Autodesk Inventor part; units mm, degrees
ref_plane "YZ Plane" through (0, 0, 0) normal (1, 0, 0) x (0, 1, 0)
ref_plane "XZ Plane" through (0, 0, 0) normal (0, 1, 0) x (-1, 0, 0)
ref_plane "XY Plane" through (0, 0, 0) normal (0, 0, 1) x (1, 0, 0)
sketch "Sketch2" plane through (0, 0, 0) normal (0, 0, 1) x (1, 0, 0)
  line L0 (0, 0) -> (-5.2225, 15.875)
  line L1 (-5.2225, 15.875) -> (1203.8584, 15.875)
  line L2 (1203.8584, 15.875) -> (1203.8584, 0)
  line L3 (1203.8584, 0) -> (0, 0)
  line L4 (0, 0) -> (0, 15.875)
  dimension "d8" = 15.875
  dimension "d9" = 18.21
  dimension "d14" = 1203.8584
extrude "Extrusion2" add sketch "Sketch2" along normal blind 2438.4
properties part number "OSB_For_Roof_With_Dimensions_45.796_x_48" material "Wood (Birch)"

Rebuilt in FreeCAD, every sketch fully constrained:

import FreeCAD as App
import Part
import Sketcher
from FreeCAD import Vector
Q = App.Units.Quantity

doc = App.newDocument("Part")
params = doc.addObject("Spreadsheet::Sheet", "Params")
for row, (alias, value) in enumerate([
    ("sketch1_width", "47.396 in"),
    ("sketch1_height", "0.625 in"),
    ("pad1_length", "96 in"),
], start=1):
    params.set(f"A{row}", alias)
    params.set(f"B{row}", "=" + value)
    params.setAlias(f"B{row}", alias)

body = doc.addObject("PartDesign::Body", "Body")

# Sketch on XY plane
sketch1 = body.newObject("Sketcher::SketchObject", "Sketch")
sketch1.AttachmentSupport = (doc.getObject("XY_Plane"), [""])
sketch1.MapMode = "FlatFace"
sketch1.addGeometry([
    Part.LineSegment(Vector(1204, 16, 0), Vector(-5, 16, 0)),
    Part.LineSegment(Vector(-5, 16, 0), Vector(0, 0, 0)),
    Part.LineSegment(Vector(0, 0, 0), Vector(1204, 0, 0)),
    Part.LineSegment(Vector(1204, 0, 0), Vector(1204, 16, 0)),
], False)
sketch1.addConstraint([
    Sketcher.Constraint("Coincident", 0, 2, 1, 1),
    Sketcher.Constraint("Coincident", 1, 2, 2, 1),
    Sketcher.Constraint("Coincident", 2, 2, 3, 1),
    Sketcher.Constraint("Coincident", 3, 2, 0, 1),
    Sketcher.Constraint("Horizontal", 0),
    Sketcher.Constraint("Horizontal", 2),
    Sketcher.Constraint("Vertical", 3),
    Sketcher.Constraint("Coincident", 1, 2, -1, 1),
    Sketcher.Constraint("DistanceX", 2, 1, 2, 2, Q("47.396 in")),
    Sketcher.Constraint("DistanceY", 3, 1, 3, 2, Q("0.625 in")),
    Sketcher.Constraint("Angle", 1, Q("-71.79 deg")),
])
sketch1.setExpression("Constraints[8]", "Params.sketch1_width")
sketch1.setExpression("Constraints[9]", "Params.sketch1_height")
pad1 = body.newObject("PartDesign::Pad", "Pad")
pad1.Profile = sketch1
pad1.setExpression("Length", "Params.pad1_length")

doc.recompute()
